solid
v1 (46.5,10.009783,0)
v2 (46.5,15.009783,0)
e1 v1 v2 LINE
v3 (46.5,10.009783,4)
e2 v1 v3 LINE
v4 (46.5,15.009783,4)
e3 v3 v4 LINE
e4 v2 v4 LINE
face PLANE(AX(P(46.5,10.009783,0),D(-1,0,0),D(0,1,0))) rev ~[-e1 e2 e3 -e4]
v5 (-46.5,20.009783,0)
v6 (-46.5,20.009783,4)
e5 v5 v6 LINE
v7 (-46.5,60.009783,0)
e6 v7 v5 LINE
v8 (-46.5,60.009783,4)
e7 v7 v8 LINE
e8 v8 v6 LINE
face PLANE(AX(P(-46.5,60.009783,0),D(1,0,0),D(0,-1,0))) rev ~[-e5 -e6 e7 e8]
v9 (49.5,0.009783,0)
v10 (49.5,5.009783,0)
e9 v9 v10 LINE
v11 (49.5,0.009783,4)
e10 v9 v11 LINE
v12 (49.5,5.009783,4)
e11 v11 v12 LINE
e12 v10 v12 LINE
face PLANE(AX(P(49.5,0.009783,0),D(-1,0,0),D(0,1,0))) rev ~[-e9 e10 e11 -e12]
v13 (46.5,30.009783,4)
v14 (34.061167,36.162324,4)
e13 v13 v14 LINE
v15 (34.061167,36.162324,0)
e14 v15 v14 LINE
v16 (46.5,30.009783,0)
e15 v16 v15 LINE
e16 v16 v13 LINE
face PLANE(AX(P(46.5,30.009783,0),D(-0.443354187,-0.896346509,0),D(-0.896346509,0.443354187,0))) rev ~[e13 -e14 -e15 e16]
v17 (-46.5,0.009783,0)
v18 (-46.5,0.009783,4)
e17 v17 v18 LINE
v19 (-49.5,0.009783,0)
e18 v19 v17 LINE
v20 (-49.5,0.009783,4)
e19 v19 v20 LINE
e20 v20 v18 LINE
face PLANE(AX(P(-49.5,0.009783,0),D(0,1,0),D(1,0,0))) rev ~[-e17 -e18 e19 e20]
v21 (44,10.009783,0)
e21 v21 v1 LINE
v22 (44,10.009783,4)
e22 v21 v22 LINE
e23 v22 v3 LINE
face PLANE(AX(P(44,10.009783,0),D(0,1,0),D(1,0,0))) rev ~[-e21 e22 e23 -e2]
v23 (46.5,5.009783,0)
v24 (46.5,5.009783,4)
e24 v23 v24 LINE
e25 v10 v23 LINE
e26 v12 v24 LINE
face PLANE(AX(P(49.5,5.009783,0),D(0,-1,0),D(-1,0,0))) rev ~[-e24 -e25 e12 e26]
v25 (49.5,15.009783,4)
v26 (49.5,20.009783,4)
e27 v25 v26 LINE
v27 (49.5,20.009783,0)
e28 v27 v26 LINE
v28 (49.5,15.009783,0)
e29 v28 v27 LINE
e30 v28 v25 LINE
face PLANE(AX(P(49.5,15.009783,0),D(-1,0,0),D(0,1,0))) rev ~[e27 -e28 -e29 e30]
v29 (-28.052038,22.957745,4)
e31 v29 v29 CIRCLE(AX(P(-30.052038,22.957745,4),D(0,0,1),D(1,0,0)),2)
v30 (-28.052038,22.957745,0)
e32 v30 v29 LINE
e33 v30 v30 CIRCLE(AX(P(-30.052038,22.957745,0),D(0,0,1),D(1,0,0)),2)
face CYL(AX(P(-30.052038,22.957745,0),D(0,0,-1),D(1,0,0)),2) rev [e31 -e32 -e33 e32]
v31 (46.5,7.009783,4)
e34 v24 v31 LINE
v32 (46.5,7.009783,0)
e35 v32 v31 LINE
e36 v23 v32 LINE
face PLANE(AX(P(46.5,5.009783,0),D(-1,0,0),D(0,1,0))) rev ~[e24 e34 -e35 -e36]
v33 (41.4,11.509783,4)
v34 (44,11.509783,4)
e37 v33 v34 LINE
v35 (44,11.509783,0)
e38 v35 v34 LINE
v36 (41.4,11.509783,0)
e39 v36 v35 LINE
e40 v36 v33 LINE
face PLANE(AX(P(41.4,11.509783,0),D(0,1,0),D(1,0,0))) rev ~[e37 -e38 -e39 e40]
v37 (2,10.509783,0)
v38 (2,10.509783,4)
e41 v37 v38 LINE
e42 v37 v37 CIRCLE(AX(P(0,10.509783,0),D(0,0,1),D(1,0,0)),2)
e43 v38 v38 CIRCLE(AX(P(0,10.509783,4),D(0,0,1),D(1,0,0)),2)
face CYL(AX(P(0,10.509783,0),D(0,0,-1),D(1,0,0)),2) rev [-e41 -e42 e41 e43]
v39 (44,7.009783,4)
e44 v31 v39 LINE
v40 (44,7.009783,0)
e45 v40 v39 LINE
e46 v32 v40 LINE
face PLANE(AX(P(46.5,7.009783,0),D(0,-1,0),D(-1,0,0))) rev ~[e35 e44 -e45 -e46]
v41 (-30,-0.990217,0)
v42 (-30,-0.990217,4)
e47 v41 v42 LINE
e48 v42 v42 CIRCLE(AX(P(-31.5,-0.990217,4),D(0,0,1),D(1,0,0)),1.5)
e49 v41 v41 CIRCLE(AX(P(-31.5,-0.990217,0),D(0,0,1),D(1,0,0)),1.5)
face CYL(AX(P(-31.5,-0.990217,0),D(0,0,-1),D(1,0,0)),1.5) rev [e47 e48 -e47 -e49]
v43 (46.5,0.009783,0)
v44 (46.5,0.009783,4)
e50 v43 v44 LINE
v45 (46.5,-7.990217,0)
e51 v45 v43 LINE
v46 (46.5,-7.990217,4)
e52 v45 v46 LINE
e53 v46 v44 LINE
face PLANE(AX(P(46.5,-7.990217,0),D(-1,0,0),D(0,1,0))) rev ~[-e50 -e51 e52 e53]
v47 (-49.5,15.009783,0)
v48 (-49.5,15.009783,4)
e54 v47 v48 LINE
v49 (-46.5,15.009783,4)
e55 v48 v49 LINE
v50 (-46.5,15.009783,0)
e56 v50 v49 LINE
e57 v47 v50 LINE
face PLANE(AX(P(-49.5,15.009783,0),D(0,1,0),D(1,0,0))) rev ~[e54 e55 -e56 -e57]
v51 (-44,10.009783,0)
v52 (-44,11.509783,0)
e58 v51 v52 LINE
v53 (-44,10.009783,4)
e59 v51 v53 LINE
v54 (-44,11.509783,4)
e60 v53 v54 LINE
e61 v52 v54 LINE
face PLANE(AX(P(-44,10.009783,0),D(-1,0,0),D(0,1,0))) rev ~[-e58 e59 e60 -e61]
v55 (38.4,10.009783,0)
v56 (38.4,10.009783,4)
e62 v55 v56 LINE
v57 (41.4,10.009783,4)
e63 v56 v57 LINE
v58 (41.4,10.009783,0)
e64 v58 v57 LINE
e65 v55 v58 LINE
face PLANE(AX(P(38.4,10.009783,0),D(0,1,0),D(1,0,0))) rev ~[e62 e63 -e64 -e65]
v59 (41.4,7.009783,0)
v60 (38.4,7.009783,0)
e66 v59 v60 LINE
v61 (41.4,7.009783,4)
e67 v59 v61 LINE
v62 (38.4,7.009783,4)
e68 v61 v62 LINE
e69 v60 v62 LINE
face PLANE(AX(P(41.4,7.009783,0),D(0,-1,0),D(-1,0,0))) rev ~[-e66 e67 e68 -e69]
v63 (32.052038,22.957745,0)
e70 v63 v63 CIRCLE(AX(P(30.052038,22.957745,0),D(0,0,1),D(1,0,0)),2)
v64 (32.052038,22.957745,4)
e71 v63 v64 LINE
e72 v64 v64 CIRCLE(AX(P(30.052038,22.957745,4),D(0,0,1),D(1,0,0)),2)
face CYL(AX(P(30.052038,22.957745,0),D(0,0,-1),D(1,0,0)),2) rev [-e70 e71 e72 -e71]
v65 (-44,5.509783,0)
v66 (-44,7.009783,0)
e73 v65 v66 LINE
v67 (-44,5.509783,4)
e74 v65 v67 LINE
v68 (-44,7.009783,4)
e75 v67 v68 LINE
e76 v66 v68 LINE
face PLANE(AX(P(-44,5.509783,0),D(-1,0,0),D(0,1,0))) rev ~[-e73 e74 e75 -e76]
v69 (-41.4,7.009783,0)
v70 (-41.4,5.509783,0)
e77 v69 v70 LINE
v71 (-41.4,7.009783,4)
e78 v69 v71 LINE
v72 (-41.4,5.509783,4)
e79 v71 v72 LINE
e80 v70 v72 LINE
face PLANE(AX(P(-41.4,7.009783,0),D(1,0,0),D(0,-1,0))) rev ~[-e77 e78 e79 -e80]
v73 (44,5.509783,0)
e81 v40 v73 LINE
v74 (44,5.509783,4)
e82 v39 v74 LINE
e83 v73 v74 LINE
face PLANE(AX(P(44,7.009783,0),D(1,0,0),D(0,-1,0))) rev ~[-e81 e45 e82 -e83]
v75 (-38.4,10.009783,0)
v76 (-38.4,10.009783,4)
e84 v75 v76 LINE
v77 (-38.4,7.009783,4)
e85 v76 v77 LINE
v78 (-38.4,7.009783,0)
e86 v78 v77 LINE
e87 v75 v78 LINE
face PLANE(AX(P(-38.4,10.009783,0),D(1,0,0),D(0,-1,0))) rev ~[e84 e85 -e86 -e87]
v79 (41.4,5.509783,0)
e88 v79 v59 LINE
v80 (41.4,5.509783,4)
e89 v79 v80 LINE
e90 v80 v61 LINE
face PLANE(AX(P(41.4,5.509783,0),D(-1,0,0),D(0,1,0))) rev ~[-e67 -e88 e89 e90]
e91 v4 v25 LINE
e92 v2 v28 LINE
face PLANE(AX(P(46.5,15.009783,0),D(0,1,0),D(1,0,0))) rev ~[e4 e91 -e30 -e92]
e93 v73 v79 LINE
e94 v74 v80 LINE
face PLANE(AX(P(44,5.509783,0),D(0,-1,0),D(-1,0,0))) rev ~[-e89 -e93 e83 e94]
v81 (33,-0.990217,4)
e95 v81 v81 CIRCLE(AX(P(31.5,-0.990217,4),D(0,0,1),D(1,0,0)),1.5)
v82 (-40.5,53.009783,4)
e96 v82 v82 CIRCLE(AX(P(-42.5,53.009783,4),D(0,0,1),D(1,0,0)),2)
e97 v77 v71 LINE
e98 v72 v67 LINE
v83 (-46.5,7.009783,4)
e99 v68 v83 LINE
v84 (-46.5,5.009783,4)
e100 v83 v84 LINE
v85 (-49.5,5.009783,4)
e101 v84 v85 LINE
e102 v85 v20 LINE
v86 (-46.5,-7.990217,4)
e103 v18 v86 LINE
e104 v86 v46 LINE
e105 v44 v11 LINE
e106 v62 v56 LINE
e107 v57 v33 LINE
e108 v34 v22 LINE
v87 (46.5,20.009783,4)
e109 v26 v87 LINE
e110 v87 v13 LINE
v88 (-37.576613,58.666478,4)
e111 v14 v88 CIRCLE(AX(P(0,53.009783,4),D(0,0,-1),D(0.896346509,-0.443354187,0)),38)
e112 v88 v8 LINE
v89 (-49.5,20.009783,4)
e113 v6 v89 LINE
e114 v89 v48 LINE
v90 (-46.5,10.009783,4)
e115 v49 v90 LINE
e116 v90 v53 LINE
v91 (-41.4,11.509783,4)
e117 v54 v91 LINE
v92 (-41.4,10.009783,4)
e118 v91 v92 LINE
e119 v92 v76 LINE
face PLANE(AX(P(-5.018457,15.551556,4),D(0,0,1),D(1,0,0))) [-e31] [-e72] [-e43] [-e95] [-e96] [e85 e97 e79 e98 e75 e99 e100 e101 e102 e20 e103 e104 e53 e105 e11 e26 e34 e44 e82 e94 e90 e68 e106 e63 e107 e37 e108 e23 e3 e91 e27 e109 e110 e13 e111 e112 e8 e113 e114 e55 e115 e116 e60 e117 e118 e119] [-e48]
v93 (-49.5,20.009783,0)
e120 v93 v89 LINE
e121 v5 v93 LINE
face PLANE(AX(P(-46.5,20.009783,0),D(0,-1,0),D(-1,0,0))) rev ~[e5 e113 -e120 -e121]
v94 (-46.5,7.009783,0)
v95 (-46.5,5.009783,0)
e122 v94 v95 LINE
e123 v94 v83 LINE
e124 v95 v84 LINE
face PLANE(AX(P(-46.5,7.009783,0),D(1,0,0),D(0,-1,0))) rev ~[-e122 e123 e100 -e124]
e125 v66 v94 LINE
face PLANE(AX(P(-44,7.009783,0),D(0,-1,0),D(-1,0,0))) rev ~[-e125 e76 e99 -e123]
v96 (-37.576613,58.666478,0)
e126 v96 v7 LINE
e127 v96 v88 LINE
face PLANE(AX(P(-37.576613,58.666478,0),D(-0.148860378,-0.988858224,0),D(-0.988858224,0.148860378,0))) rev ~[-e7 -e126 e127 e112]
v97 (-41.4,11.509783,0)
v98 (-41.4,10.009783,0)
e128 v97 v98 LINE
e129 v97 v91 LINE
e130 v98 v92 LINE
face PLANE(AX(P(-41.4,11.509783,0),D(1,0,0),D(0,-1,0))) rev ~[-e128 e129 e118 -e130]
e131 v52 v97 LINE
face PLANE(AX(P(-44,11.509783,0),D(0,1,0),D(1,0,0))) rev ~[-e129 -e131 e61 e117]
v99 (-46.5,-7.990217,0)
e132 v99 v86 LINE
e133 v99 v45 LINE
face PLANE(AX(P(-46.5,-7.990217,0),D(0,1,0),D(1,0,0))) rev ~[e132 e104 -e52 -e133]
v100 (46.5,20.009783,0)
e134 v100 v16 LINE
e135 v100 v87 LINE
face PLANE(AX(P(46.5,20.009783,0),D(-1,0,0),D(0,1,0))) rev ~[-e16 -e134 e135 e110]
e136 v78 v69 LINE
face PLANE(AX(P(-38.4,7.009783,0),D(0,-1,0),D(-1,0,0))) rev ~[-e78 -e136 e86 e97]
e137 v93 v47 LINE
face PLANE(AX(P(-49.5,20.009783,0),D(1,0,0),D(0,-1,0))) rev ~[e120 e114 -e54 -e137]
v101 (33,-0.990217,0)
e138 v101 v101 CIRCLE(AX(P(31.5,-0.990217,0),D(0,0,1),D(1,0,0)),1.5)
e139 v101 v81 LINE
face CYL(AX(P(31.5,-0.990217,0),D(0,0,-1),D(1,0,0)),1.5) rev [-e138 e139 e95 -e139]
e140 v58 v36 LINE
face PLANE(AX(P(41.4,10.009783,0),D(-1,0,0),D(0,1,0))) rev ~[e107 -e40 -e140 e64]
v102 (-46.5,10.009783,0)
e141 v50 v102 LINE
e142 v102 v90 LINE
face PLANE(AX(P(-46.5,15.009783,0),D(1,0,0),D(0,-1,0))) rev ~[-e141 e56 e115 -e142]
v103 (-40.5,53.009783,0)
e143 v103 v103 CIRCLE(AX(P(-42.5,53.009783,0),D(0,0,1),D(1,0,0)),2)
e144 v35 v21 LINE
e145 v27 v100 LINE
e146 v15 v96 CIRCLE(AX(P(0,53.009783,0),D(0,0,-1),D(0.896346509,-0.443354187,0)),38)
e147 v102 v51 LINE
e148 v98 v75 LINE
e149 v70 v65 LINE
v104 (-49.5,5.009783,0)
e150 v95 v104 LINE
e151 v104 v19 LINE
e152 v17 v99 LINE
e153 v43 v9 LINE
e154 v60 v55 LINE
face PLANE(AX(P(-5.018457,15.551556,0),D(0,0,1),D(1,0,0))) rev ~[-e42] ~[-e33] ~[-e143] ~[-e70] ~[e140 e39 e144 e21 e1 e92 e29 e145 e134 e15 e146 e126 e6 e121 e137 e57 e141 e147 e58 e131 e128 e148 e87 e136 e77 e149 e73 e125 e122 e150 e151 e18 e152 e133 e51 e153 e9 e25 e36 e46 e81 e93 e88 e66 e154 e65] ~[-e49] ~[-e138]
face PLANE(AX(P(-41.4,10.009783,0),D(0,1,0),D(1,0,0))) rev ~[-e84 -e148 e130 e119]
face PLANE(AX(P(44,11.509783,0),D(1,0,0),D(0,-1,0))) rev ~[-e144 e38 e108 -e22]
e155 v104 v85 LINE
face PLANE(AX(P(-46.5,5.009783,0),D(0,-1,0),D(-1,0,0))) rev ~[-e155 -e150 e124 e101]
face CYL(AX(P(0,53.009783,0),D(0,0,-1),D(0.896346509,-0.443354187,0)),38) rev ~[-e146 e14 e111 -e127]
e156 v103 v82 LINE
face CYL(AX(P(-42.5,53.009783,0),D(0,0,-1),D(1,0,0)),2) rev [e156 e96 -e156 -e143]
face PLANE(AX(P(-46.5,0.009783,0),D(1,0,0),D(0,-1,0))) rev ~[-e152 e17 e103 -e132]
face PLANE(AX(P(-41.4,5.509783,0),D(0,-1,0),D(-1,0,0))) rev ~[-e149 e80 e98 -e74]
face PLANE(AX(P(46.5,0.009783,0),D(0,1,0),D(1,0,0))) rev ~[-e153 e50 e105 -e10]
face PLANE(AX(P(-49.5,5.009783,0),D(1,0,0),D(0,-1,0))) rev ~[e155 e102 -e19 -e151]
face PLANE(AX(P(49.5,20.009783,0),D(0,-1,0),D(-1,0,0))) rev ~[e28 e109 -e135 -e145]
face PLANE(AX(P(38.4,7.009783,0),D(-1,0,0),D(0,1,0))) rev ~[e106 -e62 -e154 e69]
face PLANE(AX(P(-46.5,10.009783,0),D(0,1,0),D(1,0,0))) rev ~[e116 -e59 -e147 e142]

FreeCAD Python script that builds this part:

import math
import FreeCAD as App
import Part
import Sketcher

doc = App.newDocument("Part")
body = doc.addObject("PartDesign::Body", "Body")

# Sketch on XY plane
sketch1 = body.newObject("Sketcher::SketchObject", "Sketch")
sketch1.AttachmentSupport = (doc.getObject("XY_Plane"), [""])
sketch1.MapMode = "FlatFace"
sketch1.addGeometry([
    Part.LineSegment(App.Vector(-46.5, -7.990217, 0), App.Vector(46.5, -7.990217, 0)),  # 0
    Part.LineSegment(App.Vector(46.5, -7.990217, 0), App.Vector(46.5, 0.009783, 0)),  # 1
    Part.LineSegment(App.Vector(46.5, 0.009783, 0), App.Vector(49.5, 0.009783, 0)),  # 2
    Part.LineSegment(App.Vector(49.5, 0.009783, 0), App.Vector(49.5, 5.009783, 0)),  # 3
    Part.LineSegment(App.Vector(49.5, 5.009783, 0), App.Vector(46.5, 5.009783, 0)),  # 4
    Part.LineSegment(App.Vector(46.5, 5.009783, 0), App.Vector(46.5, 7.009783, 0)),  # 5
    Part.LineSegment(App.Vector(46.5, 7.009783, 0), App.Vector(44, 7.009783, 0)),  # 6
    Part.LineSegment(App.Vector(44, 7.009783, 0), App.Vector(44, 5.509783, 0)),  # 7
    Part.LineSegment(App.Vector(44, 5.509783, 0), App.Vector(41.4, 5.509783, 0)),  # 8
    Part.LineSegment(App.Vector(41.4, 5.509783, 0), App.Vector(41.4, 7.009783, 0)),  # 9
    Part.LineSegment(App.Vector(41.4, 7.009783, 0), App.Vector(38.4, 7.009783, 0)),  # 10
    Part.LineSegment(App.Vector(38.4, 7.009783, 0), App.Vector(38.4, 10.009783, 0)),  # 11
    Part.LineSegment(App.Vector(38.4, 10.009783, 0), App.Vector(41.4, 10.009783, 0)),  # 12
    Part.LineSegment(App.Vector(41.4, 10.009783, 0), App.Vector(41.4, 11.509783, 0)),  # 13
    Part.LineSegment(App.Vector(41.4, 11.509783, 0), App.Vector(44, 11.509783, 0)),  # 14
    Part.LineSegment(App.Vector(44, 11.509783, 0), App.Vector(44, 10.009783, 0)),  # 15
    Part.LineSegment(App.Vector(44, 10.009783, 0), App.Vector(46.5, 10.009783, 0)),  # 16
    Part.LineSegment(App.Vector(46.5, 10.009783, 0), App.Vector(46.5, 15.009783, 0)),  # 17
    Part.LineSegment(App.Vector(46.5, 15.009783, 0), App.Vector(49.5, 15.009783, 0)),  # 18
    Part.LineSegment(App.Vector(49.5, 15.009783, 0), App.Vector(49.5, 20.009783, 0)),  # 19
    Part.LineSegment(App.Vector(49.5, 20.009783, 0), App.Vector(46.5, 20.009783, 0)),  # 20
    Part.LineSegment(App.Vector(46.5, 20.009783, 0), App.Vector(46.5, 30.009783, 0)),  # 21
    Part.LineSegment(App.Vector(46.5, 30.009783, 0), App.Vector(34.061167, 36.162324, 0)),  # 22
    Part.ArcOfCircle(Part.Circle(App.Vector(0, 53.009783, 0), App.Vector(0, 0, 1), 38), math.radians(171.43911), math.radians(333.681912)),  # 23
    Part.LineSegment(App.Vector(-37.576613, 58.666478, 0), App.Vector(-46.5, 60.009783, 0)),  # 24
    Part.LineSegment(App.Vector(-46.5, 60.009783, 0), App.Vector(-46.5, 20.009783, 0)),  # 25
    Part.LineSegment(App.Vector(-46.5, 20.009783, 0), App.Vector(-49.5, 20.009783, 0)),  # 26
    Part.LineSegment(App.Vector(-49.5, 20.009783, 0), App.Vector(-49.5, 15.009783, 0)),  # 27
    Part.LineSegment(App.Vector(-49.5, 15.009783, 0), App.Vector(-46.5, 15.009783, 0)),  # 28
    Part.LineSegment(App.Vector(-46.5, 15.009783, 0), App.Vector(-46.5, 10.009783, 0)),  # 29
    Part.LineSegment(App.Vector(-46.5, 10.009783, 0), App.Vector(-44, 10.009783, 0)),  # 30
    Part.LineSegment(App.Vector(-44, 10.009783, 0), App.Vector(-44, 11.509783, 0)),  # 31
    Part.LineSegment(App.Vector(-44, 11.509783, 0), App.Vector(-41.4, 11.509783, 0)),  # 32
    Part.LineSegment(App.Vector(-41.4, 11.509783, 0), App.Vector(-41.4, 10.009783, 0)),  # 33
    Part.LineSegment(App.Vector(-41.4, 10.009783, 0), App.Vector(-38.4, 10.009783, 0)),  # 34
    Part.LineSegment(App.Vector(-38.4, 10.009783, 0), App.Vector(-38.4, 7.009783, 0)),  # 35
    Part.LineSegment(App.Vector(-38.4, 7.009783, 0), App.Vector(-41.4, 7.009783, 0)),  # 36
    Part.LineSegment(App.Vector(-41.4, 7.009783, 0), App.Vector(-41.4, 5.509783, 0)),  # 37
    Part.LineSegment(App.Vector(-41.4, 5.509783, 0), App.Vector(-44, 5.509783, 0)),  # 38
    Part.LineSegment(App.Vector(-44, 5.509783, 0), App.Vector(-44, 7.009783, 0)),  # 39
    Part.LineSegment(App.Vector(-44, 7.009783, 0), App.Vector(-46.5, 7.009783, 0)),  # 40
    Part.LineSegment(App.Vector(-46.5, 7.009783, 0), App.Vector(-46.5, 5.009783, 0)),  # 41
    Part.LineSegment(App.Vector(-46.5, 5.009783, 0), App.Vector(-49.5, 5.009783, 0)),  # 42
    Part.LineSegment(App.Vector(-49.5, 5.009783, 0), App.Vector(-49.5, 0.009783, 0)),  # 43
    Part.LineSegment(App.Vector(-49.5, 0.009783, 0), App.Vector(-46.5, 0.009783, 0)),  # 44
    Part.LineSegment(App.Vector(-46.5, 0.009783, 0), App.Vector(-46.5, -7.990217, 0)),  # 45
    Part.Circle(App.Vector(-31.5, -0.990217, 0), App.Vector(0, 0, 1), 1.5),  # 46
    Part.Circle(App.Vector(-30.052038, 22.957745, 0), App.Vector(0, 0, 1), 2),  # 47
    Part.Circle(App.Vector(0, 10.509783, 0), App.Vector(0, 0, 1), 2),  # 48
    Part.Circle(App.Vector(31.5, -0.990217, 0), App.Vector(0, 0, 1), 1.5),  # 49
    Part.Circle(App.Vector(30.052038, 22.957745, 0), App.Vector(0, 0, 1), 2),  # 50
    Part.Circle(App.Vector(-42.5, 53.009783, 0), App.Vector(0, 0, 1), 2),  # 51
], False)
sketch1.addConstraint([
    Sketcher.Constraint("Coincident", 0, 2, 1, 1),
    Sketcher.Constraint("Coincident", 1, 2, 2, 1),
    Sketcher.Constraint("Coincident", 2, 2, 3, 1),
    Sketcher.Constraint("Coincident", 3, 2, 4, 1),
    Sketcher.Constraint("Coincident", 4, 2, 5, 1),
    Sketcher.Constraint("Coincident", 5, 2, 6, 1),
    Sketcher.Constraint("Coincident", 6, 2, 7, 1),
    Sketcher.Constraint("Coincident", 7, 2, 8, 1),
    Sketcher.Constraint("Coincident", 8, 2, 9, 1),
    Sketcher.Constraint("Coincident", 9, 2, 10, 1),
    Sketcher.Constraint("Coincident", 10, 2, 11, 1),
    Sketcher.Constraint("Coincident", 11, 2, 12, 1),
    Sketcher.Constraint("Coincident", 12, 2, 13, 1),
    Sketcher.Constraint("Coincident", 13, 2, 14, 1),
    Sketcher.Constraint("Coincident", 14, 2, 15, 1),
    Sketcher.Constraint("Coincident", 15, 2, 16, 1),
    Sketcher.Constraint("Coincident", 16, 2, 17, 1),
    Sketcher.Constraint("Coincident", 17, 2, 18, 1),
    Sketcher.Constraint("Coincident", 18, 2, 19, 1),
    Sketcher.Constraint("Coincident", 19, 2, 20, 1),
    Sketcher.Constraint("Coincident", 20, 2, 21, 1),
    Sketcher.Constraint("Coincident", 21, 2, 22, 1),
    Sketcher.Constraint("Coincident", 22, 2, 23, 2),
    Sketcher.Constraint("Coincident", 23, 1, 24, 1),
    Sketcher.Constraint("Coincident", 24, 2, 25, 1),
    Sketcher.Constraint("Coincident", 25, 2, 26, 1),
    Sketcher.Constraint("Coincident", 26, 2, 27, 1),
    Sketcher.Constraint("Coincident", 27, 2, 28, 1),
    Sketcher.Constraint("Coincident", 28, 2, 29, 1),
    Sketcher.Constraint("Coincident", 29, 2, 30, 1),
    Sketcher.Constraint("Coincident", 30, 2, 31, 1),
    Sketcher.Constraint("Coincident", 31, 2, 32, 1),
    Sketcher.Constraint("Coincident", 32, 2, 33, 1),
    Sketcher.Constraint("Coincident", 33, 2, 34, 1),
    Sketcher.Constraint("Coincident", 34, 2, 35, 1),
    Sketcher.Constraint("Coincident", 35, 2, 36, 1),
    Sketcher.Constraint("Coincident", 36, 2, 37, 1),
    Sketcher.Constraint("Coincident", 37, 2, 38, 1),
    Sketcher.Constraint("Coincident", 38, 2, 39, 1),
    Sketcher.Constraint("Coincident", 39, 2, 40, 1),
    Sketcher.Constraint("Coincident", 40, 2, 41, 1),
    Sketcher.Constraint("Coincident", 41, 2, 42, 1),
    Sketcher.Constraint("Coincident", 42, 2, 43, 1),
    Sketcher.Constraint("Coincident", 43, 2, 44, 1),
    Sketcher.Constraint("Coincident", 44, 2, 45, 1),
    Sketcher.Constraint("Coincident", 45, 2, 0, 1),
    Sketcher.Constraint("Horizontal", 0),
    Sketcher.Constraint("Vertical", 1),
    Sketcher.Constraint("Horizontal", 2),
    Sketcher.Constraint("Vertical", 3),
    Sketcher.Constraint("Horizontal", 4),
    Sketcher.Constraint("Vertical", 5),
    Sketcher.Constraint("Horizontal", 6),
    Sketcher.Constraint("Vertical", 7),
    Sketcher.Constraint("Horizontal", 8),
    Sketcher.Constraint("Vertical", 9),
    Sketcher.Constraint("Horizontal", 10),
    Sketcher.Constraint("Vertical", 11),
    Sketcher.Constraint("Horizontal", 12),
    Sketcher.Constraint("Vertical", 13),
    Sketcher.Constraint("Horizontal", 14),
    Sketcher.Constraint("Vertical", 15),
    Sketcher.Constraint("Horizontal", 16),
    Sketcher.Constraint("Vertical", 17),
    Sketcher.Constraint("Horizontal", 18),
    Sketcher.Constraint("Vertical", 19),
    Sketcher.Constraint("Horizontal", 20),
    Sketcher.Constraint("Vertical", 21),
    Sketcher.Constraint("Vertical", 25),
    Sketcher.Constraint("Horizontal", 26),
    Sketcher.Constraint("Vertical", 27),
    Sketcher.Constraint("Horizontal", 28),
    Sketcher.Constraint("Vertical", 29),
    Sketcher.Constraint("Horizontal", 30),
    Sketcher.Constraint("Vertical", 31),
    Sketcher.Constraint("Horizontal", 32),
    Sketcher.Constraint("Vertical", 33),
    Sketcher.Constraint("Horizontal", 34),
    Sketcher.Constraint("Vertical", 35),
    Sketcher.Constraint("Horizontal", 36),
    Sketcher.Constraint("Vertical", 37),
    Sketcher.Constraint("Horizontal", 38),
    Sketcher.Constraint("Vertical", 39),
    Sketcher.Constraint("Horizontal", 40),
    Sketcher.Constraint("Vertical", 41),
    Sketcher.Constraint("Horizontal", 42),
    Sketcher.Constraint("Vertical", 43),
    Sketcher.Constraint("Horizontal", 44),
    Sketcher.Constraint("Vertical", 45),
    Sketcher.Constraint("Equal", 47, 48),
    Sketcher.Constraint("Equal", 46, 49),
    Sketcher.Constraint("Equal", 48, 50),
    Sketcher.Constraint("Equal", 50, 51),
    Sketcher.Constraint("Symmetric", 46, 3, 49, 3, -2),
    Sketcher.Constraint("Symmetric", 47, 3, 50, 3, -2),
    Sketcher.Constraint("Symmetric", 20, 2, 25, 2, -2),
    Sketcher.Constraint("Symmetric", 18, 2, 27, 2, -2),
    Sketcher.Constraint("Symmetric", 16, 2, 29, 2, -2),
    Sketcher.Constraint("Symmetric", 14, 2, 31, 2, -2),
    Sketcher.Constraint("Symmetric", 12, 2, 33, 2, -2),
    Sketcher.Constraint("Symmetric", 10, 2, 35, 2, -2),
    Sketcher.Constraint("Symmetric", 8, 2, 37, 2, -2),
    Sketcher.Constraint("Symmetric", 6, 2, 39, 2, -2),
    Sketcher.Constraint("Symmetric", 4, 2, 41, 2, -2),
    Sketcher.Constraint("Symmetric", 2, 2, 43, 2, -2),
    Sketcher.Constraint("PointOnObject", 23, 3, -2),
    Sketcher.Constraint("PointOnObject", 48, 3, -2),
    Sketcher.Constraint("Horizontal", 23, 3, 51, 3),
    Sketcher.Constraint("Horizontal", 6, 2, 9, 2),
    Sketcher.Constraint("Horizontal", 12, 2, 15, 2),
    Sketcher.Constraint("Vertical", 1, 2, 4, 2),
    Sketcher.Constraint("Vertical", 9, 2, 12, 2),
    Sketcher.Constraint("Vertical", 7, 2, 14, 2),
    Sketcher.Constraint("Vertical", 5, 2, 16, 2),
    Sketcher.Constraint("Vertical", 3, 2, 18, 2),
    Sketcher.Constraint("Vertical", 17, 2, 20, 2),
    Sketcher.Constraint("Vertical", 41, 2, 44, 2),
    Sketcher.Constraint("Equal", 4, 10),
    Sketcher.Constraint("Equal", 44, 11),
    Sketcher.Constraint("Equal", 9, 13),
    Sketcher.Constraint("Equal", 3, 17),
    Sketcher.Constraint("Equal", 17, 19),
    Sketcher.Constraint("Diameter", 46, 3.0),
    Sketcher.Constraint("Diameter", 47, 4.0),
    Sketcher.Constraint("Radius", 23, 38.0),
    Sketcher.Constraint("DistanceX", 0, 1, 0, 2, 93.0),
    Sketcher.Constraint("DistanceX", 2, 1, 2, 2, 3.0),
    Sketcher.Constraint("DistanceY", 1, 1, 1, 2, 8.0),
    Sketcher.Constraint("DistanceY", 3, 1, 3, 2, 5.0),
    Sketcher.Constraint("DistanceY", 5, 1, 5, 2, 2.0),
    Sketcher.Constraint("DistanceY", 21, 1, 21, 2, 10.0),
    Sketcher.Constraint("DistanceY", 25, 2, 25, 1, 40.0),
    Sketcher.Constraint("DistanceX", 6, 2, 6, 1, 2.5),
    Sketcher.Constraint("DistanceX", 8, 2, 8, 1, 2.6),
    Sketcher.Constraint("DistanceY", 7, 2, 7, 1, 1.5),
    Sketcher.Constraint("DistanceY", 46, 3, 23, 3, 54.0),
    Sketcher.Constraint("DistanceX", 46, 3, 49, 3, 63.0),
    Sketcher.Constraint("DistanceX", 51, 3, 46, 3, 11.0),
    Sketcher.Constraint("DistanceY", 0, 2, 49, 3, 7.0),
    Sketcher.Constraint("DistanceY", 46, 3, 48, 3, 11.5),
    Sketcher.Constraint("DistanceX", 47, 3, -1, 1, 30.052038),
    Sketcher.Constraint("DistanceY", 46, 3, 47, 3, 23.947962),
    Sketcher.Constraint("DistanceX", 50, 3, 22, 2, 4.009129),
    Sketcher.Constraint("DistanceY", -1, 1, 23, 3, 53.009783),
    Sketcher.Constraint("DistanceX", 23, 1, -1, 1, 37.576613),
])
pad1 = body.newObject("PartDesign::Pad", "Pad")
pad1.Profile = sketch1
pad1.Length = 4

doc.recompute()
